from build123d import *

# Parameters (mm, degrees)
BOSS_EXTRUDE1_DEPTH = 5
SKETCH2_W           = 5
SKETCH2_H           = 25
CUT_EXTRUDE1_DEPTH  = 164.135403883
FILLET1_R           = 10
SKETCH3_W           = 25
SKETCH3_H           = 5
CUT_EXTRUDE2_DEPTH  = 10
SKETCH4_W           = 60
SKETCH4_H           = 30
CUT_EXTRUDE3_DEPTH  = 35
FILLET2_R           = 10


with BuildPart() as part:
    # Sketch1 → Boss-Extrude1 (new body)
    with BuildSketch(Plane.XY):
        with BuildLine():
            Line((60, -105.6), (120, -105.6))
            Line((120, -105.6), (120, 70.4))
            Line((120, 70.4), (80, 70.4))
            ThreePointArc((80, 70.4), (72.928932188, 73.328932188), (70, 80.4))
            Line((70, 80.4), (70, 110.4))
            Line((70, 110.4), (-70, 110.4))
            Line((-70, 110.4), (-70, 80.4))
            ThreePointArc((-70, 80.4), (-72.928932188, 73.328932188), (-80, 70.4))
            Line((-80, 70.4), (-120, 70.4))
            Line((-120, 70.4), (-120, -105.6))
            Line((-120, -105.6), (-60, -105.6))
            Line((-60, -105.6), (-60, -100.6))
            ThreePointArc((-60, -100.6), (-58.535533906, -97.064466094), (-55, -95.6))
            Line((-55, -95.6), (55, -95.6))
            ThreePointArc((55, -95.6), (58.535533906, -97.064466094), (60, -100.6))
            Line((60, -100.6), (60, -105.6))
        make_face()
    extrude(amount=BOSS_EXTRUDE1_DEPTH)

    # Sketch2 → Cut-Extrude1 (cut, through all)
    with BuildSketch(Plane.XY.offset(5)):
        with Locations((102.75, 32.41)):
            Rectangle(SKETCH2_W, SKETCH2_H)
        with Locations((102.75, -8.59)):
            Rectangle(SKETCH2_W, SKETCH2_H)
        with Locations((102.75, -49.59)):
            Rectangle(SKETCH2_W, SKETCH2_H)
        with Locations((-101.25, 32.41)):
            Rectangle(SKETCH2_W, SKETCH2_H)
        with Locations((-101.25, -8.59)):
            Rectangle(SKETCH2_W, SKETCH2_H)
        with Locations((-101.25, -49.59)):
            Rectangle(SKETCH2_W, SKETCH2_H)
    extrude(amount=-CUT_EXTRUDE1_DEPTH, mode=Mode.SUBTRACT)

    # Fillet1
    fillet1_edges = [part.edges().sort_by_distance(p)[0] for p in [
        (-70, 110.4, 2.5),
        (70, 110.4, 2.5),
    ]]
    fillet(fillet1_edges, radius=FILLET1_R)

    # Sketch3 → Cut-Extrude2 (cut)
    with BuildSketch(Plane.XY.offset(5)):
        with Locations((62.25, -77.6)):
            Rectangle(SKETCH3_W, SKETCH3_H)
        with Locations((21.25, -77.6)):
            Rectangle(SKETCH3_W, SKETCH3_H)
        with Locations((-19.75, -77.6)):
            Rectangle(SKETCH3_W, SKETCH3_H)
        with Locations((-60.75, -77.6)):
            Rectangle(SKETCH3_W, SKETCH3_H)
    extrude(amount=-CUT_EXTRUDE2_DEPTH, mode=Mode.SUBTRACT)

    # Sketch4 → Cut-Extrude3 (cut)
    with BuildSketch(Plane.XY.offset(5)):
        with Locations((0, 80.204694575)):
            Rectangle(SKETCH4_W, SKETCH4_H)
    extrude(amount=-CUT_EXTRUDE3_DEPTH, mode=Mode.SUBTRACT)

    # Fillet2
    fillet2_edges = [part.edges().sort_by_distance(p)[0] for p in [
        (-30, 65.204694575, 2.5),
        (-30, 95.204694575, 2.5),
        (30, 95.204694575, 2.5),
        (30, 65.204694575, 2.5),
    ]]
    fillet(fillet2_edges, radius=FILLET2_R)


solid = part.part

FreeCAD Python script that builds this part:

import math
import FreeCAD as App
import Part
import Sketcher
from FreeCAD import Vector


def edges_at(feature, points):
    """Names of the edges that pass closest to the given points."""
    edges = feature.Shape.Edges
    near = lambda p: min(range(len(edges)), key=lambda i: edges[i].distToShape(Part.Vertex(*p))[0])
    return sorted({f"Edge{near(p) + 1}" for p in points})

doc = App.newDocument("Part")
body = doc.addObject("PartDesign::Body", "Body")

sketch1 = doc.addObject("Sketcher::SketchObject", "Sketch")
body.addObject(sketch1)
sketch1.AttachmentSupport = (doc.XY_Plane, [""])
sketch1.MapMode = "FlatFace"
sketch1.addGeometry([
    Part.LineSegment(Vector(60, -106, 0), Vector(120, -106, 0)),
    Part.LineSegment(Vector(120, -106, 0), Vector(120, 70, 0)),
    Part.LineSegment(Vector(120, 70, 0), Vector(80, 70, 0)),
    Part.ArcOfCircle(Part.Circle(Vector(80, 80, 0), Vector(0, 0, 1), 10), math.radians(180), math.radians(270)),
    Part.LineSegment(Vector(70, 80, 0), Vector(70, 110, 0)),
    Part.LineSegment(Vector(70, 110, 0), Vector(-70, 110, 0)),
    Part.LineSegment(Vector(-70, 110, 0), Vector(-70, 80, 0)),
    Part.ArcOfCircle(Part.Circle(Vector(-80, 80, 0), Vector(0, 0, 1), 10), math.radians(-90), math.radians(0)),
    Part.LineSegment(Vector(-80, 70, 0), Vector(-120, 70, 0)),
    Part.LineSegment(Vector(-120, 70, 0), Vector(-120, -106, 0)),
    Part.LineSegment(Vector(-120, -106, 0), Vector(-60, -106, 0)),
    Part.LineSegment(Vector(-60, -106, 0), Vector(-60, -101, 0)),
    Part.ArcOfCircle(Part.Circle(Vector(-55, -101, 0), Vector(0, 0, 1), 5), math.radians(90), math.radians(180)),
    Part.LineSegment(Vector(-55, -96, 0), Vector(55, -96, 0)),
    Part.ArcOfCircle(Part.Circle(Vector(55, -101, 0), Vector(0, 0, 1), 5), math.radians(0), math.radians(90)),
    Part.LineSegment(Vector(60, -101, 0), Vector(60, -106, 0)),
], False)
sketch1.addConstraint([
    Sketcher.Constraint("Coincident", 0, 2, 1, 1),
    Sketcher.Constraint("Coincident", 1, 2, 2, 1),
    Sketcher.Constraint("Tangent", 2, 2, 3, 2),
    Sketcher.Constraint("Tangent", 3, 1, 4, 1),
    Sketcher.Constraint("Coincident", 4, 2, 5, 1),
    Sketcher.Constraint("Coincident", 5, 2, 6, 1),
    Sketcher.Constraint("Tangent", 6, 2, 7, 2),
    Sketcher.Constraint("Tangent", 7, 1, 8, 1),
    Sketcher.Constraint("Coincident", 8, 2, 9, 1),
    Sketcher.Constraint("Coincident", 9, 2, 10, 1),
    Sketcher.Constraint("Coincident", 10, 2, 11, 1),
    Sketcher.Constraint("Tangent", 11, 2, 12, 2),
    Sketcher.Constraint("Tangent", 12, 1, 13, 1),
    Sketcher.Constraint("Tangent", 13, 2, 14, 2),
    Sketcher.Constraint("Tangent", 14, 1, 15, 1),
    Sketcher.Constraint("Coincident", 15, 2, 0, 1),
    Sketcher.Constraint("Horizontal", 0),
    Sketcher.Constraint("Vertical", 1),
    Sketcher.Constraint("Horizontal", 2),
    Sketcher.Constraint("Vertical", 4),
    Sketcher.Constraint("Horizontal", 5),
    Sketcher.Constraint("Vertical", 6),
    Sketcher.Constraint("Horizontal", 8),
    Sketcher.Constraint("Vertical", 9),
    Sketcher.Constraint("Horizontal", 10),
    Sketcher.Constraint("Vertical", 11),
    Sketcher.Constraint("Horizontal", 13),
    Sketcher.Constraint("Vertical", 15),
    Sketcher.Constraint("Equal", 3, 7),
    Sketcher.Constraint("Equal", 12, 14),
    Sketcher.Constraint("Symmetric", 3, 3, 7, 3, -2),
    Sketcher.Constraint("Symmetric", 0, 2, 9, 2, -2),
    Sketcher.Constraint("Equal", 0, 10),
    Sketcher.Constraint("Radius", 3, 10.0),
    Sketcher.Constraint("Radius", 12, 5.0),
    Sketcher.Constraint("DistanceX", 0, 1, 0, 2, 60.0),
    Sketcher.Constraint("DistanceX", 2, 2, 2, 1, 40.0),
    Sketcher.Constraint("DistanceX", 5, 2, 5, 1, 140.0),
    Sketcher.Constraint("DistanceY", 1, 1, 1, 2, 176.0),
    Sketcher.Constraint("DistanceY", 4, 1, 4, 2, 30.0),
    Sketcher.Constraint("DistanceY", 11, 1, 11, 2, 5.0),
    Sketcher.Constraint("DistanceY", -1, 1, 3, 3, 80.4),
])
pad1 = doc.addObject("PartDesign::Pad", "Pad")
body.addObject(pad1)
pad1.Profile = sketch1
pad1.Length = 5

sketch2 = doc.addObject("Sketcher::SketchObject", "Sketch001")
body.addObject(sketch2)
sketch2.AttachmentSupport = (doc.XY_Plane, [""])
sketch2.MapMode = "FlatFace"
sketch2.AttachmentOffset = App.Placement(Vector(0, 0, 5), App.Rotation())
sketch2.addGeometry([
    Part.LineSegment(Vector(100, 45, 0), Vector(100, 20, 0)),
    Part.LineSegment(Vector(100, 20, 0), Vector(105, 20, 0)),
    Part.LineSegment(Vector(105, 20, 0), Vector(105, 45, 0)),
    Part.LineSegment(Vector(105, 45, 0), Vector(100, 45, 0)),
    Part.LineSegment(Vector(100, 4, 0), Vector(100, -21, 0)),
    Part.LineSegment(Vector(100, -21, 0), Vector(105, -21, 0)),
    Part.LineSegment(Vector(105, -21, 0), Vector(105, 4, 0)),
    Part.LineSegment(Vector(105, 4, 0), Vector(100, 4, 0)),
    Part.LineSegment(Vector(100, -37, 0), Vector(100, -62, 0)),
    Part.LineSegment(Vector(100, -62, 0), Vector(105, -62, 0)),
    Part.LineSegment(Vector(105, -62, 0), Vector(105, -37, 0)),
    Part.LineSegment(Vector(105, -37, 0), Vector(100, -37, 0)),
    Part.LineSegment(Vector(-104, 45, 0), Vector(-104, 20, 0)),
    Part.LineSegment(Vector(-104, 20, 0), Vector(-99, 20, 0)),
    Part.LineSegment(Vector(-99, 20, 0), Vector(-99, 45, 0)),
    Part.LineSegment(Vector(-99, 45, 0), Vector(-104, 45, 0)),
    Part.LineSegment(Vector(-104, 4, 0), Vector(-104, -21, 0)),
    Part.LineSegment(Vector(-104, -21, 0), Vector(-99, -21, 0)),
    Part.LineSegment(Vector(-99, -21, 0), Vector(-99, 4, 0)),
    Part.LineSegment(Vector(-99, 4, 0), Vector(-104, 4, 0)),
    Part.LineSegment(Vector(-104, -37, 0), Vector(-104, -62, 0)),
    Part.LineSegment(Vector(-104, -62, 0), Vector(-99, -62, 0)),
    Part.LineSegment(Vector(-99, -62, 0), Vector(-99, -37, 0)),
    Part.LineSegment(Vector(-99, -37, 0), Vector(-104, -37, 0)),
], False)
sketch2.addConstraint([
    Sketcher.Constraint("Coincident", 0, 2, 1, 1),
    Sketcher.Constraint("Coincident", 1, 2, 2, 1),
    Sketcher.Constraint("Coincident", 2, 2, 3, 1),
    Sketcher.Constraint("Coincident", 3, 2, 0, 1),
    Sketcher.Constraint("Coincident", 4, 2, 5, 1),
    Sketcher.Constraint("Coincident", 5, 2, 6, 1),
    Sketcher.Constraint("Coincident", 6, 2, 7, 1),
    Sketcher.Constraint("Coincident", 7, 2, 4, 1),
    Sketcher.Constraint("Coincident", 8, 2, 9, 1),
    Sketcher.Constraint("Coincident", 9, 2, 10, 1),
    Sketcher.Constraint("Coincident", 10, 2, 11, 1),
    Sketcher.Constraint("Coincident", 11, 2, 8, 1),
    Sketcher.Constraint("Coincident", 12, 2, 13, 1),
    Sketcher.Constraint("Coincident", 13, 2, 14, 1),
    Sketcher.Constraint("Coincident", 14, 2, 15, 1),
    Sketcher.Constraint("Coincident", 15, 2, 12, 1),
    Sketcher.Constraint("Coincident", 16, 2, 17, 1),
    Sketcher.Constraint("Coincident", 17, 2, 18, 1),
    Sketcher.Constraint("Coincident", 18, 2, 19, 1),
    Sketcher.Constraint("Coincident", 19, 2, 16, 1),
    Sketcher.Constraint("Coincident", 20, 2, 21, 1),
    Sketcher.Constraint("Coincident", 21, 2, 22, 1),
    Sketcher.Constraint("Coincident", 22, 2, 23, 1),
    Sketcher.Constraint("Coincident", 23, 2, 20, 1),
    Sketcher.Constraint("Vertical", 0),
    Sketcher.Constraint("Horizontal", 1),
    Sketcher.Constraint("Vertical", 2),
    Sketcher.Constraint("Horizontal", 3),
    Sketcher.Constraint("Vertical", 4),
    Sketcher.Constraint("Horizontal", 5),
    Sketcher.Constraint("Vertical", 6),
    Sketcher.Constraint("Horizontal", 7),
    Sketcher.Constraint("Vertical", 8),
    Sketcher.Constraint("Horizontal", 9),
    Sketcher.Constraint("Vertical", 10),
    Sketcher.Constraint("Horizontal", 11),
    Sketcher.Constraint("Vertical", 12),
    Sketcher.Constraint("Horizontal", 13),
    Sketcher.Constraint("Vertical", 14),
    Sketcher.Constraint("Horizontal", 15),
    Sketcher.Constraint("Vertical", 16),
    Sketcher.Constraint("Horizontal", 17),
    Sketcher.Constraint("Vertical", 18),
    Sketcher.Constraint("Horizontal", 19),
    Sketcher.Constraint("Vertical", 20),
    Sketcher.Constraint("Horizontal", 21),
    Sketcher.Constraint("Vertical", 22),
    Sketcher.Constraint("Horizontal", 23),
    Sketcher.Constraint("Horizontal", 1, 2, 12, 2),
    Sketcher.Constraint("Horizontal", 3, 2, 14, 2),
    Sketcher.Constraint("Horizontal", 5, 2, 16, 2),
    Sketcher.Constraint("Horizontal", 7, 2, 18, 2),
    Sketcher.Constraint("Horizontal", 9, 2, 20, 2),
    Sketcher.Constraint("Horizontal", 11, 2, 22, 2),
    Sketcher.Constraint("Vertical", 3, 2, 4, 2),
    Sketcher.Constraint("Vertical", 2, 2, 5, 2),
    Sketcher.Constraint("Vertical", 7, 2, 8, 2),
    Sketcher.Constraint("Vertical", 6, 2, 9, 2),
    Sketcher.Constraint("Vertical", 15, 2, 16, 2),
    Sketcher.Constraint("Vertical", 14, 2, 17, 2),
    Sketcher.Constraint("Vertical", 19, 2, 20, 2),
    Sketcher.Constraint("Vertical", 18, 2, 21, 2),
    Sketcher.Constraint("Equal", 11, 13),
    Sketcher.Constraint("Equal", 2, 4),
    Sketcher.Constraint("Equal", 6, 8),
    Sketcher.Constraint("DistanceX", 1, 1, 1, 2, 5.0),
    Sketcher.Constraint("DistanceY", 0, 2, 0, 1, 25.0),
    Sketcher.Constraint("DistanceY", 4, 2, 0, 2, 41.0),
    Sketcher.Constraint("DistanceY", 8, 2, 4, 2, 41.0),
    Sketcher.Constraint("DistanceX", 12, 2, 0, 2, 204.0),
    Sketcher.Constraint("DistanceX", -1, 1, 0, 2, 100.25),
    Sketcher.Constraint("DistanceY", -1, 1, 0, 2, 19.91),
])
pocket1 = doc.addObject("PartDesign::Pocket", "Pocket")
body.addObject(pocket1)
pocket1.Profile = sketch2
pocket1.Type = "ThroughAll"
doc.recompute()

fillet = doc.addObject("PartDesign::Fillet", "Fillet")
body.addObject(fillet)
fillet.Base = (pocket1, edges_at(pocket1, [(-70, 110.4, 2.5), (70, 110.4, 2.5)]))
fillet.Radius = 10

sketch3 = doc.addObject("Sketcher::SketchObject", "Sketch002")
body.addObject(sketch3)
sketch3.AttachmentSupport = (doc.XY_Plane, [""])
sketch3.MapMode = "FlatFace"
sketch3.AttachmentOffset = App.Placement(Vector(0, 0, 5), App.Rotation())
sketch3.addGeometry([
    Part.LineSegment(Vector(50, -75, 0), Vector(50, -80, 0)),
    Part.LineSegment(Vector(50, -80, 0), Vector(75, -80, 0)),
    Part.LineSegment(Vector(75, -80, 0), Vector(75, -75, 0)),
    Part.LineSegment(Vector(75, -75, 0), Vector(50, -75, 0)),
    Part.LineSegment(Vector(9, -75, 0), Vector(9, -80, 0)),
    Part.LineSegment(Vector(9, -80, 0), Vector(34, -80, 0)),
    Part.LineSegment(Vector(34, -80, 0), Vector(34, -75, 0)),
    Part.LineSegment(Vector(34, -75, 0), Vector(9, -75, 0)),
    Part.LineSegment(Vector(-32, -75, 0), Vector(-32, -80, 0)),
    Part.LineSegment(Vector(-32, -80, 0), Vector(-7, -80, 0)),
    Part.LineSegment(Vector(-7, -80, 0), Vector(-7, -75, 0)),
    Part.LineSegment(Vector(-7, -75, 0), Vector(-32, -75, 0)),
    Part.LineSegment(Vector(-73, -75, 0), Vector(-73, -80, 0)),
    Part.LineSegment(Vector(-73, -80, 0), Vector(-48, -80, 0)),
    Part.LineSegment(Vector(-48, -80, 0), Vector(-48, -75, 0)),
    Part.LineSegment(Vector(-48, -75, 0), Vector(-73, -75, 0)),
], False)
sketch3.addConstraint([
    Sketcher.Constraint("Coincident", 0, 2, 1, 1),
    Sketcher.Constraint("Coincident", 1, 2, 2, 1),
    Sketcher.Constraint("Coincident", 2, 2, 3, 1),
    Sketcher.Constraint("Coincident", 3, 2, 0, 1),
    Sketcher.Constraint("Coincident", 4, 2, 5, 1),
    Sketcher.Constraint("Coincident", 5, 2, 6, 1),
    Sketcher.Constraint("Coincident", 6, 2, 7, 1),
    Sketcher.Constraint("Coincident", 7, 2, 4, 1),
    Sketcher.Constraint("Coincident", 8, 2, 9, 1),
    Sketcher.Constraint("Coincident", 9, 2, 10, 1),
    Sketcher.Constraint("Coincident", 10, 2, 11, 1),
    Sketcher.Constraint("Coincident", 11, 2, 8, 1),
    Sketcher.Constraint("Coincident", 12, 2, 13, 1),
    Sketcher.Constraint("Coincident", 13, 2, 14, 1),
    Sketcher.Constraint("Coincident", 14, 2, 15, 1),
    Sketcher.Constraint("Coincident", 15, 2, 12, 1),
    Sketcher.Constraint("Vertical", 0),
    Sketcher.Constraint("Horizontal", 1),
    Sketcher.Constraint("Vertical", 2),
    Sketcher.Constraint("Horizontal", 3),
    Sketcher.Constraint("Vertical", 4),
    Sketcher.Constraint("Horizontal", 5),
    Sketcher.Constraint("Vertical", 6),
    Sketcher.Constraint("Horizontal", 7),
    Sketcher.Constraint("Vertical", 8),
    Sketcher.Constraint("Horizontal", 9),
    Sketcher.Constraint("Vertical", 10),
    Sketcher.Constraint("Horizontal", 11),
    Sketcher.Constraint("Vertical", 12),
    Sketcher.Constraint("Horizontal", 13),
    Sketcher.Constraint("Vertical", 14),
    Sketcher.Constraint("Horizontal", 15),
    Sketcher.Constraint("Horizontal", 1, 2, 4, 2),
    Sketcher.Constraint("Horizontal", 3, 2, 6, 2),
    Sketcher.Constraint("Horizontal", 5, 2, 8, 2),
    Sketcher.Constraint("Horizontal", 7, 2, 10, 2),
    Sketcher.Constraint("Horizontal", 9, 2, 12, 2),
    Sketcher.Constraint("Horizontal", 11, 2, 14, 2),
    Sketcher.Constraint("Equal", 3, 5),
    Sketcher.Constraint("Equal", 7, 9),
    Sketcher.Constraint("Equal", 11, 13),
    Sketcher.Constraint("DistanceX", 1, 1, 1, 2, 25.0),
    Sketcher.Constraint("DistanceY", 0, 2, 0, 1, 5.0),
    Sketcher.Constraint("DistanceX", 4, 2, 0, 2, 41.0),
    Sketcher.Constraint("DistanceX", 8, 2, 4, 2, 41.0),
    Sketcher.Constraint("DistanceX", 12, 2, 8, 2, 41.0),
    Sketcher.Constraint("DistanceY", 0, 2, -1, 1, 80.1),
    Sketcher.Constraint("DistanceX", -1, 1, 0, 2, 49.75),
])
pocket2 = doc.addObject("PartDesign::Pocket", "Pocket001")
body.addObject(pocket2)
pocket2.Profile = sketch3
pocket2.Length = 10

sketch4 = doc.addObject("Sketcher::SketchObject", "Sketch003")
body.addObject(sketch4)
sketch4.AttachmentSupport = (doc.XY_Plane, [""])
sketch4.MapMode = "FlatFace"
sketch4.AttachmentOffset = App.Placement(Vector(0, 0, 5), App.Rotation())
sketch4.addGeometry([
    Part.LineSegment(Vector(-30, 95, 0), Vector(-30, 65, 0)),
    Part.LineSegment(Vector(-30, 65, 0), Vector(30, 65, 0)),
    Part.LineSegment(Vector(30, 65, 0), Vector(30, 95, 0)),
    Part.LineSegment(Vector(30, 95, 0), Vector(-30, 95, 0)),
], False)
sketch4.addConstraint([
    Sketcher.Constraint("Coincident", 0, 2, 1, 1),
    Sketcher.Constraint("Coincident", 1, 2, 2, 1),
    Sketcher.Constraint("Coincident", 2, 2, 3, 1),
    Sketcher.Constraint("Coincident", 3, 2, 0, 1),
    Sketcher.Constraint("Vertical", 0),
    Sketcher.Constraint("Horizontal", 1),
    Sketcher.Constraint("Vertical", 2),
    Sketcher.Constraint("Horizontal", 3),
    Sketcher.Constraint("DistanceX", 1, 1, 1, 2, 60.0),
    Sketcher.Constraint("DistanceY", 0, 2, 0, 1, 30.0),
    Sketcher.Constraint("DistanceX", 0, 2, -1, 1, 30.0),
    Sketcher.Constraint("DistanceY", -1, 1, 0, 2, 65.204695),
])
pocket3 = doc.addObject("PartDesign::Pocket", "Pocket002")
body.addObject(pocket3)
pocket3.Profile = sketch4
pocket3.Length = 35
doc.recompute()

fillet2 = doc.addObject("PartDesign::Fillet", "Fillet001")
body.addObject(fillet2)
fillet2.Base = (pocket3, edges_at(pocket3, [
    (-30, 65.205, 2.5),
    (-30, 95.205, 2.5),
    (30, 95.205, 2.5),
    (30, 65.205, 2.5),
]))
fillet2.Radius = 10

doc.recompute()
